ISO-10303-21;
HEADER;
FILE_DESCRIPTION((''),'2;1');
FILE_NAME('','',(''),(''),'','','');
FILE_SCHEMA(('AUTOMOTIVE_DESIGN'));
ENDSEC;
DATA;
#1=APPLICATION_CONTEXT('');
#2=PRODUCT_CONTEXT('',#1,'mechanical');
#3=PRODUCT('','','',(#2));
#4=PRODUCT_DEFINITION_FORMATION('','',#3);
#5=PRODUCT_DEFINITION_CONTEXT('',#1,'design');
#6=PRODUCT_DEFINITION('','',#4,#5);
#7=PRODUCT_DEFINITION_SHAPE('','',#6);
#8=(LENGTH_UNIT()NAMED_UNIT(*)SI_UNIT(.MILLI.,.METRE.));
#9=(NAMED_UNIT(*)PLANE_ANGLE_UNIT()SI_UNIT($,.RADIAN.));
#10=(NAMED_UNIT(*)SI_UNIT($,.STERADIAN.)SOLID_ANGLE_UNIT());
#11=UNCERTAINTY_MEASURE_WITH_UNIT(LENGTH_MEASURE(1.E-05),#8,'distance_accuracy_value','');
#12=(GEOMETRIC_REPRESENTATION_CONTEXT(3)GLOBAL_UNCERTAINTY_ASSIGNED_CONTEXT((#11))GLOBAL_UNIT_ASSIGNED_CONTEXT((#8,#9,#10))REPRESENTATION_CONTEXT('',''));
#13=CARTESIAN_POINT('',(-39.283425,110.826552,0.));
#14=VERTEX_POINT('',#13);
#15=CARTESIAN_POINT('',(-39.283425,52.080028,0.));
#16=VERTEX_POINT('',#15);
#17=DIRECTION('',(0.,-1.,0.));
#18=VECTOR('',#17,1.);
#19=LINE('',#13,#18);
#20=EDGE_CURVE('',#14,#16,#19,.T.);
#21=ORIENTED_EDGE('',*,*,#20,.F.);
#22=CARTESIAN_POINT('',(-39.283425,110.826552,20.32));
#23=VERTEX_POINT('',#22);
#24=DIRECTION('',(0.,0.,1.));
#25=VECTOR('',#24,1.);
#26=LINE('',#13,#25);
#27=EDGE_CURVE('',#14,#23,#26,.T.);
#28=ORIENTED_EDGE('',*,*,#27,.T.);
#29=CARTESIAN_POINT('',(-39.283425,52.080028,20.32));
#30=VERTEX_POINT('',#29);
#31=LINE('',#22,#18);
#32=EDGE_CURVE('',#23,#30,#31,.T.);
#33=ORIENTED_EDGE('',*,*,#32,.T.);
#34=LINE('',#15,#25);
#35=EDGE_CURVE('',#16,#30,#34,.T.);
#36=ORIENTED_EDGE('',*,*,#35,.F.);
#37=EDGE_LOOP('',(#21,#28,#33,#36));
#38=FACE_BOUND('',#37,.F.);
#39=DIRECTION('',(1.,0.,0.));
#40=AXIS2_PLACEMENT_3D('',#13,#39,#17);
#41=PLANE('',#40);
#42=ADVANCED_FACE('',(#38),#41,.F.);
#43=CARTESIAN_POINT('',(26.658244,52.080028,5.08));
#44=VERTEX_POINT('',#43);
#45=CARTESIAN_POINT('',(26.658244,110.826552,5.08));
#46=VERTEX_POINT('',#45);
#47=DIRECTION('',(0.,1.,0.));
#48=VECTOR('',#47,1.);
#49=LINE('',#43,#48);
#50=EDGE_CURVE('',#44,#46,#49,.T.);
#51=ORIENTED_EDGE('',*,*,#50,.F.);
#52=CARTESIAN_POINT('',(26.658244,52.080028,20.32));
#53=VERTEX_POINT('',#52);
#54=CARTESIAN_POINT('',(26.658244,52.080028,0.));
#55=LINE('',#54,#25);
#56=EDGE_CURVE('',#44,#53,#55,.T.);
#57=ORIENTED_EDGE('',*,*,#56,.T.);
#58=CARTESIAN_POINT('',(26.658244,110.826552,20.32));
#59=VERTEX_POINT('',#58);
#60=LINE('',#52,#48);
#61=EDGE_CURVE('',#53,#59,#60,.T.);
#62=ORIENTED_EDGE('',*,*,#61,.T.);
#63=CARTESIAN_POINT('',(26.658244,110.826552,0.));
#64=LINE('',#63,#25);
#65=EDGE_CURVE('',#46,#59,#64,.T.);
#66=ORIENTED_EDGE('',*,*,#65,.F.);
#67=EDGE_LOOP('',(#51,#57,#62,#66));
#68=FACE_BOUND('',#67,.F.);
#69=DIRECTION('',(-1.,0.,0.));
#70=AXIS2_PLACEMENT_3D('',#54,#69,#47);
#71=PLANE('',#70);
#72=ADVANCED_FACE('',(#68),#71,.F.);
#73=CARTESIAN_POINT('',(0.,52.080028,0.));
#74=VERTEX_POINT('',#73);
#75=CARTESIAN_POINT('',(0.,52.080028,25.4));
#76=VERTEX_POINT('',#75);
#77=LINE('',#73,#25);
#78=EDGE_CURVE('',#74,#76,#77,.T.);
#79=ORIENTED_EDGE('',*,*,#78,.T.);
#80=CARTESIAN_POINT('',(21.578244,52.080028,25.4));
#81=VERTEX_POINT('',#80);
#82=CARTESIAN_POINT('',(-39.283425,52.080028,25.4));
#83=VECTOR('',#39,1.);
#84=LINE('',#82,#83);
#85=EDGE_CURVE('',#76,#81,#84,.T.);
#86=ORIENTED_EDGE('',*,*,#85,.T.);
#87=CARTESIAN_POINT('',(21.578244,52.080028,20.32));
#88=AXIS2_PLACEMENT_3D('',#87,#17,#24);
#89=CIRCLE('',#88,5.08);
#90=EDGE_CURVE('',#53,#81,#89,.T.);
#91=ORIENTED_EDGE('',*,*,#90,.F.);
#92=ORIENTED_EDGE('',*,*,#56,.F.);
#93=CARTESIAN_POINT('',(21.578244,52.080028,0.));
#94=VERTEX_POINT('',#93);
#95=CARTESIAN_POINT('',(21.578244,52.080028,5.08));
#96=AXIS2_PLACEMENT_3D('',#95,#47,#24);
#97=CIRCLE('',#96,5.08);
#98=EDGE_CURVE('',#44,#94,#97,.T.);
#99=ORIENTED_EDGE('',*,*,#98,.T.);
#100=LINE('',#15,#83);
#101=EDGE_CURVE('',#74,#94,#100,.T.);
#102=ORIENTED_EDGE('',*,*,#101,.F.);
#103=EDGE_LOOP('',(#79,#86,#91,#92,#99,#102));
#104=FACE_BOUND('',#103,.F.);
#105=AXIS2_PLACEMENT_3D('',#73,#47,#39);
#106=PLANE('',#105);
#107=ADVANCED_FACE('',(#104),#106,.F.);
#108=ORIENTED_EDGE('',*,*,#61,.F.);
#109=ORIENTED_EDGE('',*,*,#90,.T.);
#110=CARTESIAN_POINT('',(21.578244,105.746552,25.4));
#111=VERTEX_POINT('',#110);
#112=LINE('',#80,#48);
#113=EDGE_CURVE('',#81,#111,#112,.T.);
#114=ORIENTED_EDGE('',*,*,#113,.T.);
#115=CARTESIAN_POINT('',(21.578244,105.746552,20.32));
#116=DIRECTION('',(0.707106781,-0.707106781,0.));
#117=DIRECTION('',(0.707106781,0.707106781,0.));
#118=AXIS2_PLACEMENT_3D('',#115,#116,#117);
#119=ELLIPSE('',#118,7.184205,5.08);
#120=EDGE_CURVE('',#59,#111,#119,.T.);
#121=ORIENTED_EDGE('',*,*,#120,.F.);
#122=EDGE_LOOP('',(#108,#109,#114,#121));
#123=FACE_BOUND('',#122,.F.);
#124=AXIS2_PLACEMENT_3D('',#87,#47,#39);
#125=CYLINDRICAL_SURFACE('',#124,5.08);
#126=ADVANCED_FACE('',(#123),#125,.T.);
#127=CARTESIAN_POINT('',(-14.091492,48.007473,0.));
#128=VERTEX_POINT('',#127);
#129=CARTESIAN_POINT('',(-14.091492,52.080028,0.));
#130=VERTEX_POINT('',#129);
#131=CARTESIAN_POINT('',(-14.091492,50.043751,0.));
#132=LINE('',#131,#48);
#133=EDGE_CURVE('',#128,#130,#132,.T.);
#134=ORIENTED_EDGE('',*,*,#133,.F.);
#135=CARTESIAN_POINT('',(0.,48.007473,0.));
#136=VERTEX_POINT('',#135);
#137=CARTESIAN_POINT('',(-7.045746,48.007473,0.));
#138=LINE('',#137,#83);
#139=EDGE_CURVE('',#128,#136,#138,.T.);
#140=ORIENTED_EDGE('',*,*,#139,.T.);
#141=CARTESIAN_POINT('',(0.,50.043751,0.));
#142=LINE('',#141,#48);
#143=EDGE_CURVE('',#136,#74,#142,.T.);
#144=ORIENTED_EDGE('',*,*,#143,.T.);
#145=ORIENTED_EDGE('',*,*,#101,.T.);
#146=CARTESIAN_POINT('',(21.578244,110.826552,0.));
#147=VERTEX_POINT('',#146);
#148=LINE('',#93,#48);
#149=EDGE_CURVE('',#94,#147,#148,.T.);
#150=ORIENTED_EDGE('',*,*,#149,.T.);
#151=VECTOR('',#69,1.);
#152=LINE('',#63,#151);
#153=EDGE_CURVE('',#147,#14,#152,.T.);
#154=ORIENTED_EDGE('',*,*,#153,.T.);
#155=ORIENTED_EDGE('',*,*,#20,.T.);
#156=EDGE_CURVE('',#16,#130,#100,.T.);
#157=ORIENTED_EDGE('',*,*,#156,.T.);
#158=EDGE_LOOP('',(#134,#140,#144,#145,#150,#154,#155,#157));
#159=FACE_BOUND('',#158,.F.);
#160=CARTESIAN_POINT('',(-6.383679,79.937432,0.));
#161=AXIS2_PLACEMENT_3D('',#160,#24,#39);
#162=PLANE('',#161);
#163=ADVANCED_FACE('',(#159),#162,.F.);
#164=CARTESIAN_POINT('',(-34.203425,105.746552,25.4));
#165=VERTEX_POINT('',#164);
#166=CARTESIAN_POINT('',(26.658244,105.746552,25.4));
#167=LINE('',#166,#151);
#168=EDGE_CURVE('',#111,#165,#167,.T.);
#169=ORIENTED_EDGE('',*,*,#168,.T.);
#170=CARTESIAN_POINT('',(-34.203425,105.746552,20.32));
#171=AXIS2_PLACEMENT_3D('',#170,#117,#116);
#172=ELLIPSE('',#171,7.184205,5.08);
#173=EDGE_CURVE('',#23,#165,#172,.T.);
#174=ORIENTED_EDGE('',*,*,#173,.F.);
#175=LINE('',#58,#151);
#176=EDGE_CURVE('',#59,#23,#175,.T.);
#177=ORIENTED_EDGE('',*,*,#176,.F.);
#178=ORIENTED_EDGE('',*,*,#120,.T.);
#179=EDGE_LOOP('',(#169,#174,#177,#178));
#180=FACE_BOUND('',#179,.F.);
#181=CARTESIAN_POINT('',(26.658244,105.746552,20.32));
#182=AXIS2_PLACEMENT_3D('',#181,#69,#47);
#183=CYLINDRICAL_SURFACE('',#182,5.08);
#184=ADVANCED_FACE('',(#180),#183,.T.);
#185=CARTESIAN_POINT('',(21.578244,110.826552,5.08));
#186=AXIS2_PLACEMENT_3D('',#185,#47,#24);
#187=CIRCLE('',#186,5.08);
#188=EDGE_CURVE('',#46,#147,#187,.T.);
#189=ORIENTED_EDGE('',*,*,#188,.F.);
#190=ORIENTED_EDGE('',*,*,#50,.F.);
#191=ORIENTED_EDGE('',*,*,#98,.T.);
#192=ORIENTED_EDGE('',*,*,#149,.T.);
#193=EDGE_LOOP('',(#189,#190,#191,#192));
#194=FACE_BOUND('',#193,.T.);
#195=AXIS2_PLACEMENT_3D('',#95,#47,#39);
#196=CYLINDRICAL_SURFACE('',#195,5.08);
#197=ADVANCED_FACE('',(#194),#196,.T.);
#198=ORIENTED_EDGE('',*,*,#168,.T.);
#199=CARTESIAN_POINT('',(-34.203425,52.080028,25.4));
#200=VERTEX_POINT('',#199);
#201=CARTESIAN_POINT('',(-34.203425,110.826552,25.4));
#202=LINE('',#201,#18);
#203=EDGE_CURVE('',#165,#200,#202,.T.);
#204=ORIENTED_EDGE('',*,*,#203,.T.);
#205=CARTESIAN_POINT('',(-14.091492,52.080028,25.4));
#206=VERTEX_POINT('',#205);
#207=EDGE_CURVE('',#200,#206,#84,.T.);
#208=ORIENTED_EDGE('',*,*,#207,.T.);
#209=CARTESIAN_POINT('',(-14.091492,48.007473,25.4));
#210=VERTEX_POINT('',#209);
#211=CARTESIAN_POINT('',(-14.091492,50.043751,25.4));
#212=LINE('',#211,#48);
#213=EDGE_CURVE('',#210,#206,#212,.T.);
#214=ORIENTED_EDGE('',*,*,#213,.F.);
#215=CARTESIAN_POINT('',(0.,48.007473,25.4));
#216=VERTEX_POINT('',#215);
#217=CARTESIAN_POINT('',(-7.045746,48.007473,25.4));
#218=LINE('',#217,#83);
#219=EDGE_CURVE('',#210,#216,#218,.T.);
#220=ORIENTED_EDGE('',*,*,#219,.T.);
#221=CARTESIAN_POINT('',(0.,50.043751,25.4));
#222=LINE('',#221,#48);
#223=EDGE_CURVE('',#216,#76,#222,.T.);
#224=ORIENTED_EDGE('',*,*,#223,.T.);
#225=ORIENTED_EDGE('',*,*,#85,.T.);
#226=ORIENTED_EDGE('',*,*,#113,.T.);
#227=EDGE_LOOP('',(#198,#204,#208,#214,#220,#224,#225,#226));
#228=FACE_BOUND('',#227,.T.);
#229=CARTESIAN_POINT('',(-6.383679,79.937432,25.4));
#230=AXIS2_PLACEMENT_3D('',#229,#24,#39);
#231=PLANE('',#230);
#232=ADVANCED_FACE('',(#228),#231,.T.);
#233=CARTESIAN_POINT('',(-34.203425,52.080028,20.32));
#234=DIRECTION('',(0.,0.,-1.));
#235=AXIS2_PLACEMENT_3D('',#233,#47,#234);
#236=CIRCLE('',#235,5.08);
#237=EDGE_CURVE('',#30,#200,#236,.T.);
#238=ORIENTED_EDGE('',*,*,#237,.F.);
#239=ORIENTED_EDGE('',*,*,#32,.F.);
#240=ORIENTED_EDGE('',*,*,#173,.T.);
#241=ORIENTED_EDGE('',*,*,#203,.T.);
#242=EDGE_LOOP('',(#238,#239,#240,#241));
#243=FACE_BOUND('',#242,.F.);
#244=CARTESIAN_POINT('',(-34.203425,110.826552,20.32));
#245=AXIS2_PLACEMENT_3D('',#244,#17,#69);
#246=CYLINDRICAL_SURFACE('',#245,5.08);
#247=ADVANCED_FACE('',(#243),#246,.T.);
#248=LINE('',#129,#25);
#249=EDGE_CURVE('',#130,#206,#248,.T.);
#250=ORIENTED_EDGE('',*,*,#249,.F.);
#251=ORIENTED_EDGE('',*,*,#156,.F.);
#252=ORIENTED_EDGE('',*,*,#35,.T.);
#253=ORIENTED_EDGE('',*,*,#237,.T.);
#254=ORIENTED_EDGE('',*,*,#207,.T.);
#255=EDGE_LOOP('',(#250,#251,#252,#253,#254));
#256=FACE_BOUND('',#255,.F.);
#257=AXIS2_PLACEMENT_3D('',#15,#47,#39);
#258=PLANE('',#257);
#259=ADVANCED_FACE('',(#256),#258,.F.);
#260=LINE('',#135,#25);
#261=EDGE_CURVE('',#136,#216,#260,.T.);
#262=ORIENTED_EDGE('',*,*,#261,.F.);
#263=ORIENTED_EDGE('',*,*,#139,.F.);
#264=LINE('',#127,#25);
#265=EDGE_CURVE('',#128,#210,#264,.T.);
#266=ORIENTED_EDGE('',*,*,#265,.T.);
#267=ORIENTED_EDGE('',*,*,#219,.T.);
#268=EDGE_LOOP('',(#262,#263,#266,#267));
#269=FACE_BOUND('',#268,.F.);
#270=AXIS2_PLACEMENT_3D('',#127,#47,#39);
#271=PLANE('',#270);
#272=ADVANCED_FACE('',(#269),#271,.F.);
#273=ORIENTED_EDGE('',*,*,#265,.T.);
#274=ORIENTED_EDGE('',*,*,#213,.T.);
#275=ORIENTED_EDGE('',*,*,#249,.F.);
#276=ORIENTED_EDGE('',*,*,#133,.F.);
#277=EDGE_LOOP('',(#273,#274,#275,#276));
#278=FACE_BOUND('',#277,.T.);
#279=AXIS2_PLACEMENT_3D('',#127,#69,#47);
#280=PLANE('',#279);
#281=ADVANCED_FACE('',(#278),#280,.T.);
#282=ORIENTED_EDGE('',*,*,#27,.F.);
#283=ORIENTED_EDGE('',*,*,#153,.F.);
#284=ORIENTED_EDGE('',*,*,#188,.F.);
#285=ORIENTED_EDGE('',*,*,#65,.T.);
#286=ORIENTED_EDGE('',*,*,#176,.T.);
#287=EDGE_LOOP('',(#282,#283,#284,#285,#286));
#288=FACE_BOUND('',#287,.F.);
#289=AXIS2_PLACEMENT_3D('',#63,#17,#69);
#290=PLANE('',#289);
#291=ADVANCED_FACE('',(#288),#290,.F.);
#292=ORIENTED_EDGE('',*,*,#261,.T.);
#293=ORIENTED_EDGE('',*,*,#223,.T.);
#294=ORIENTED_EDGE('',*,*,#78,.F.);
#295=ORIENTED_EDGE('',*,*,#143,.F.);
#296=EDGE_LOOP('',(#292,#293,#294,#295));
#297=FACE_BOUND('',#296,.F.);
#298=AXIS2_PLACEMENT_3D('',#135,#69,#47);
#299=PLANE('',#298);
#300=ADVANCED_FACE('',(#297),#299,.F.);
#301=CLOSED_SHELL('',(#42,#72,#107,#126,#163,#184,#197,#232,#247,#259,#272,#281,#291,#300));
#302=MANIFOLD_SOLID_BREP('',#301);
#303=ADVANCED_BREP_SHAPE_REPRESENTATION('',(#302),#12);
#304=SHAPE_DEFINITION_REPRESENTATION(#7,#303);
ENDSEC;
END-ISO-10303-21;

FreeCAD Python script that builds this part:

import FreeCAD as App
import Part
import Sketcher
Q = App.Units.Quantity


def edges_at(feature, points):
    """Names of the edges that pass closest to the given points."""
    edges = feature.Shape.Edges
    near = lambda p: min(range(len(edges)), key=lambda i: edges[i].distToShape(Part.Vertex(*p))[0])
    return sorted({f"Edge{near(p) + 1}" for p in points})

doc = App.newDocument("Part")
body = doc.addObject("PartDesign::Body", "Body")

# Sketch on XY plane
sketch1 = body.newObject("Sketcher::SketchObject", "Sketch")
sketch1.AttachmentSupport = (doc.getObject("XY_Plane"), [""])
sketch1.MapMode = "FlatFace"
sketch1.addGeometry([
    Part.LineSegment(App.Vector(26.7, 52.1, 0), App.Vector(26.7, 110.8, 0)),  # 0
    Part.LineSegment(App.Vector(26.7, 110.8, 0), App.Vector(-39.3, 110.8, 0)),  # 1
    Part.LineSegment(App.Vector(-39.3, 110.8, 0), App.Vector(-39.3, 52.1, 0)),  # 2
    Part.LineSegment(App.Vector(-39.3, 52.1, 0), App.Vector(-14.1, 52.1, 0)),  # 3
    Part.LineSegment(App.Vector(-14.1, 52.1, 0), App.Vector(-14.1, 48, 0)),  # 4
    Part.LineSegment(App.Vector(-14.1, 48, 0), App.Vector(0, 48, 0)),  # 5
    Part.LineSegment(App.Vector(0, 48, 0), App.Vector(0, 52.1, 0)),  # 6
    Part.LineSegment(App.Vector(0, 52.1, 0), App.Vector(26.7, 52.1, 0)),  # 7
], False)
sketch1.addConstraint([
    Sketcher.Constraint("Coincident", 0, 2, 1, 1),
    Sketcher.Constraint("Coincident", 1, 2, 2, 1),
    Sketcher.Constraint("Coincident", 2, 2, 3, 1),
    Sketcher.Constraint("Coincident", 3, 2, 4, 1),
    Sketcher.Constraint("Coincident", 4, 2, 5, 1),
    Sketcher.Constraint("Coincident", 5, 2, 6, 1),
    Sketcher.Constraint("Coincident", 6, 2, 7, 1),
    Sketcher.Constraint("Coincident", 7, 2, 0, 1),
    Sketcher.Constraint("Vertical", 0),
    Sketcher.Constraint("Horizontal", 1),
    Sketcher.Constraint("Vertical", 2),
    Sketcher.Constraint("Horizontal", 3),
    Sketcher.Constraint("Vertical", 4),
    Sketcher.Constraint("Horizontal", 5),
    Sketcher.Constraint("Vertical", 6),
    Sketcher.Constraint("Horizontal", 7),
    Sketcher.Constraint("PointOnObject", 5, 2, -2),
    Sketcher.Constraint("Horizontal", 3, 2, 6, 2),
    Sketcher.Constraint("DistanceX", 1, 2, 1, 1, Q("65.941669 mm")),
    Sketcher.Constraint("DistanceX", 5, 1, 5, 2, Q("14.091492 mm")),
    Sketcher.Constraint("DistanceX", 3, 1, 3, 2, Q("25.191933 mm")),
    Sketcher.Constraint("DistanceY", 0, 1, 0, 2, Q("58.746524 mm")),
    Sketcher.Constraint("DistanceY", 4, 2, 4, 1, Q("4.072554 mm")),
    Sketcher.Constraint("DistanceY", -1, 1, 0, 2, Q("110.826552 mm")),
])
pad1 = body.newObject("PartDesign::Pad", "Pad")
pad1.Profile = sketch1
pad1.Length = Q("1 in")
doc.recompute()

fillet = body.newObject("PartDesign::Fillet", "Fillet")
fillet.Base = (pad1, edges_at(pad1, [
    (26.658, 81.453, 25.4),
    (26.658, 81.453, 0),
    (-39.283, 81.453, 25.4),
    (-6.313, 110.827, 25.4),
]))
fillet.Radius = Q("0.2 in")

doc.recompute()
